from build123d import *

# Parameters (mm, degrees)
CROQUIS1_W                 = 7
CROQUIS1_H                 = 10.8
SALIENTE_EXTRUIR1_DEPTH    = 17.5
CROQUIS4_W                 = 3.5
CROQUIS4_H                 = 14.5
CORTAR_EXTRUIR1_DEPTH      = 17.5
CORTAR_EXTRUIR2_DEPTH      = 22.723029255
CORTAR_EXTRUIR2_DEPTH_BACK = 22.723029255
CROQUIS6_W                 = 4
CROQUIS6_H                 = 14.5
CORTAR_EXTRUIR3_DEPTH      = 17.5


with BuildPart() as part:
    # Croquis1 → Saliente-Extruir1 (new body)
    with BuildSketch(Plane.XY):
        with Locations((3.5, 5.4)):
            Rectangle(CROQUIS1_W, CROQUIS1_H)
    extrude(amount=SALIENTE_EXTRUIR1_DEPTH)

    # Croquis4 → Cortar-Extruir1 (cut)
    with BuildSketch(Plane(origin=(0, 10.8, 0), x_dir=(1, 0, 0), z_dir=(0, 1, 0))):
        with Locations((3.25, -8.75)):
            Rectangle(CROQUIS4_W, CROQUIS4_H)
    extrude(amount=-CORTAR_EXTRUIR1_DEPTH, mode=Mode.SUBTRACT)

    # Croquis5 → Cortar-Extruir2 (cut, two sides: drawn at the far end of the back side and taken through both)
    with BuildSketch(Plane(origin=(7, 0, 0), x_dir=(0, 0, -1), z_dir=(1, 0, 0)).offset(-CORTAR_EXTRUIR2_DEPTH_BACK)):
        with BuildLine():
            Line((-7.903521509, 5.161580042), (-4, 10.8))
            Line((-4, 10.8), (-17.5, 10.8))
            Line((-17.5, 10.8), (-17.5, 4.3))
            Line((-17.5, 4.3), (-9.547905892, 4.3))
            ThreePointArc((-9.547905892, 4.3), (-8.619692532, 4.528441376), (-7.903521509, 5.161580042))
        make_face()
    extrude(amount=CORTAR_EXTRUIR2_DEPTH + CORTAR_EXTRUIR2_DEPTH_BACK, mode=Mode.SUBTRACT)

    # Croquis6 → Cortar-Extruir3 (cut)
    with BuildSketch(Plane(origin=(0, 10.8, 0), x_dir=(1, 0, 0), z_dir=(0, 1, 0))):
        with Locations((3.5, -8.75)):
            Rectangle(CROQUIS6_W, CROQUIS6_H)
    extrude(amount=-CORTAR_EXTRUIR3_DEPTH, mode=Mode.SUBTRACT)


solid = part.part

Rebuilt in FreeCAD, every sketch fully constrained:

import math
import FreeCAD as App
import Part
import Sketcher
from FreeCAD import Vector
Q = App.Units.Quantity

doc = App.newDocument("Part")
body = doc.addObject("PartDesign::Body", "Body")

# Sketch on XY plane
sketch1 = doc.addObject("Sketcher::SketchObject", "Sketch")
body.addObject(sketch1)
sketch1.AttachmentSupport = (doc.XY_Plane, [""])
sketch1.MapMode = "FlatFace"
sketch1.addGeometry([
    Part.LineSegment(Vector(0, 10.8, 0), Vector(0, 0, 0)),
    Part.LineSegment(Vector(0, 0, 0), Vector(7, 0, 0)),
    Part.LineSegment(Vector(7, 0, 0), Vector(7, 10.8, 0)),
    Part.LineSegment(Vector(7, 10.8, 0), Vector(0, 10.8, 0)),
], False)
sketch1.addConstraint([
    Sketcher.Constraint("Coincident", 0, 2, 1, 1),
    Sketcher.Constraint("Coincident", 1, 2, 2, 1),
    Sketcher.Constraint("Coincident", 2, 2, 3, 1),
    Sketcher.Constraint("Coincident", 3, 2, 0, 1),
    Sketcher.Constraint("Vertical", 0),
    Sketcher.Constraint("Horizontal", 1),
    Sketcher.Constraint("Vertical", 2),
    Sketcher.Constraint("Horizontal", 3),
    Sketcher.Constraint("Coincident", 0, 2, -1, 1),
    Sketcher.Constraint("DistanceX", 1, 1, 1, 2, Q("7 mm")),
    Sketcher.Constraint("DistanceY", 0, 2, 0, 1, Q("10.8 mm")),
])
pad1 = doc.addObject("PartDesign::Pad", "Pad")
body.addObject(pad1)
pad1.Profile = sketch1
pad1.Length = 17.5

# Sketch on XZ plane
sketch2 = doc.addObject("Sketcher::SketchObject", "Sketch001")
body.addObject(sketch2)
sketch2.AttachmentSupport = (doc.XZ_Plane, [""])
sketch2.MapMode = "FlatFace"
sketch2.AttachmentOffset = App.Placement(Vector(0, 0, -10.8), App.Rotation())
sketch2.addGeometry([
    Part.LineSegment(Vector(1.5, 1.5, 0), Vector(1.5, 16, 0)),
    Part.LineSegment(Vector(1.5, 16, 0), Vector(5, 16, 0)),
    Part.LineSegment(Vector(5, 16, 0), Vector(5, 1.5, 0)),
    Part.LineSegment(Vector(5, 1.5, 0), Vector(1.5, 1.5, 0)),
], False)
sketch2.addConstraint([
    Sketcher.Constraint("Coincident", 0, 2, 1, 1),
    Sketcher.Constraint("Coincident", 1, 2, 2, 1),
    Sketcher.Constraint("Coincident", 2, 2, 3, 1),
    Sketcher.Constraint("Coincident", 3, 2, 0, 1),
    Sketcher.Constraint("Vertical", 0),
    Sketcher.Constraint("Horizontal", 1),
    Sketcher.Constraint("Vertical", 2),
    Sketcher.Constraint("Horizontal", 3),
    Sketcher.Constraint("DistanceX", 1, 1, 1, 2, Q("3.5 mm")),
    Sketcher.Constraint("DistanceY", 0, 1, 0, 2, Q("14.5 mm")),
    Sketcher.Constraint("DistanceY", -1, 1, 0, 2, Q("16 mm")),
    Sketcher.Constraint("DistanceX", -1, 1, 1, 2, Q("5 mm")),
])
pocket1 = doc.addObject("PartDesign::Pocket", "Pocket")
body.addObject(pocket1)
pocket1.Profile = sketch2
pocket1.Length = 17.5
pocket1.Reversed = True

# Sketch on YZ plane
sketch3 = doc.addObject("Sketcher::SketchObject", "Sketch002")
body.addObject(sketch3)
sketch3.AttachmentSupport = (doc.YZ_Plane, [""])
sketch3.MapMode = "FlatFace"
sketch3.AttachmentOffset = App.Placement(Vector(0, 0, 7), App.Rotation())
sketch3.addGeometry([
    Part.LineSegment(Vector(5.16158, 7.903522, 0), Vector(10.8, 4, 0)),  # 0
    Part.LineSegment(Vector(10.8, 4, 0), Vector(10.8, 17.5, 0)),  # 1
    Part.LineSegment(Vector(10.8, 17.5, 0), Vector(4.3, 17.5, 0)),  # 2
    Part.LineSegment(Vector(4.3, 17.5, 0), Vector(4.3, 9.547906, 0)),  # 3
    Part.ArcOfCircle(Part.Circle(Vector(6.3, 9.547906, 0), Vector(0, 0, 1), 2), math.radians(180), math.radians(235.304846)),  # 4
], False)
sketch3.addConstraint([
    Sketcher.Constraint("Coincident", 0, 2, 1, 1),
    Sketcher.Constraint("Coincident", 1, 2, 2, 1),
    Sketcher.Constraint("Coincident", 2, 2, 3, 1),
    Sketcher.Constraint("Tangent", 3, 2, 4, 1),
    Sketcher.Constraint("Tangent", 4, 2, 0, 1),
    Sketcher.Constraint("Vertical", 1),
    Sketcher.Constraint("Horizontal", 2),
    Sketcher.Constraint("Vertical", 3),
    Sketcher.Constraint("Radius", 4, Q("2 mm")),
    Sketcher.Constraint("DistanceX", 2, 2, 2, 1, Q("6.5 mm")),
    Sketcher.Constraint("DistanceY", 1, 1, 1, 2, Q("13.5 mm")),
    Sketcher.Constraint("DistanceY", -1, 1, 0, 2, Q("4 mm")),
    Sketcher.Constraint("DistanceX", -1, 1, 4, 3, Q("6.3 mm")),
    Sketcher.Constraint("Distance", 0, Q("6.857788 mm")),
])
pocket2 = doc.addObject("PartDesign::Pocket", "Pocket001")
body.addObject(pocket2)
pocket2.Profile = sketch3
pocket2.Type = "ThroughAll"
pocket2.Midplane = True

# Sketch on XZ plane
sketch4 = doc.addObject("Sketcher::SketchObject", "Sketch003")
body.addObject(sketch4)
sketch4.AttachmentSupport = (doc.XZ_Plane, [""])
sketch4.MapMode = "FlatFace"
sketch4.AttachmentOffset = App.Placement(Vector(0, 0, -10.8), App.Rotation())
sketch4.addGeometry([
    Part.LineSegment(Vector(1.5, 1.5, 0), Vector(1.5, 16, 0)),
    Part.LineSegment(Vector(1.5, 16, 0), Vector(5.5, 16, 0)),
    Part.LineSegment(Vector(5.5, 16, 0), Vector(5.5, 1.5, 0)),
    Part.LineSegment(Vector(5.5, 1.5, 0), Vector(1.5, 1.5, 0)),
], False)
sketch4.addConstraint([
    Sketcher.Constraint("Coincident", 0, 2, 1, 1),
    Sketcher.Constraint("Coincident", 1, 2, 2, 1),
    Sketcher.Constraint("Coincident", 2, 2, 3, 1),
    Sketcher.Constraint("Coincident", 3, 2, 0, 1),
    Sketcher.Constraint("Vertical", 0),
    Sketcher.Constraint("Horizontal", 1),
    Sketcher.Constraint("Vertical", 2),
    Sketcher.Constraint("Horizontal", 3),
    Sketcher.Constraint("DistanceX", 1, 1, 1, 2, Q("4 mm")),
    Sketcher.Constraint("DistanceY", 0, 1, 0, 2, Q("14.5 mm")),
    Sketcher.Constraint("DistanceY", -1, 1, 0, 2, Q("16 mm")),
    Sketcher.Constraint("DistanceX", -1, 1, 0, 2, Q("1.5 mm")),
])
pocket3 = doc.addObject("PartDesign::Pocket", "Pocket002")
body.addObject(pocket3)
pocket3.Profile = sketch4
pocket3.Length = 17.5
pocket3.Reversed = True

doc.recompute()
